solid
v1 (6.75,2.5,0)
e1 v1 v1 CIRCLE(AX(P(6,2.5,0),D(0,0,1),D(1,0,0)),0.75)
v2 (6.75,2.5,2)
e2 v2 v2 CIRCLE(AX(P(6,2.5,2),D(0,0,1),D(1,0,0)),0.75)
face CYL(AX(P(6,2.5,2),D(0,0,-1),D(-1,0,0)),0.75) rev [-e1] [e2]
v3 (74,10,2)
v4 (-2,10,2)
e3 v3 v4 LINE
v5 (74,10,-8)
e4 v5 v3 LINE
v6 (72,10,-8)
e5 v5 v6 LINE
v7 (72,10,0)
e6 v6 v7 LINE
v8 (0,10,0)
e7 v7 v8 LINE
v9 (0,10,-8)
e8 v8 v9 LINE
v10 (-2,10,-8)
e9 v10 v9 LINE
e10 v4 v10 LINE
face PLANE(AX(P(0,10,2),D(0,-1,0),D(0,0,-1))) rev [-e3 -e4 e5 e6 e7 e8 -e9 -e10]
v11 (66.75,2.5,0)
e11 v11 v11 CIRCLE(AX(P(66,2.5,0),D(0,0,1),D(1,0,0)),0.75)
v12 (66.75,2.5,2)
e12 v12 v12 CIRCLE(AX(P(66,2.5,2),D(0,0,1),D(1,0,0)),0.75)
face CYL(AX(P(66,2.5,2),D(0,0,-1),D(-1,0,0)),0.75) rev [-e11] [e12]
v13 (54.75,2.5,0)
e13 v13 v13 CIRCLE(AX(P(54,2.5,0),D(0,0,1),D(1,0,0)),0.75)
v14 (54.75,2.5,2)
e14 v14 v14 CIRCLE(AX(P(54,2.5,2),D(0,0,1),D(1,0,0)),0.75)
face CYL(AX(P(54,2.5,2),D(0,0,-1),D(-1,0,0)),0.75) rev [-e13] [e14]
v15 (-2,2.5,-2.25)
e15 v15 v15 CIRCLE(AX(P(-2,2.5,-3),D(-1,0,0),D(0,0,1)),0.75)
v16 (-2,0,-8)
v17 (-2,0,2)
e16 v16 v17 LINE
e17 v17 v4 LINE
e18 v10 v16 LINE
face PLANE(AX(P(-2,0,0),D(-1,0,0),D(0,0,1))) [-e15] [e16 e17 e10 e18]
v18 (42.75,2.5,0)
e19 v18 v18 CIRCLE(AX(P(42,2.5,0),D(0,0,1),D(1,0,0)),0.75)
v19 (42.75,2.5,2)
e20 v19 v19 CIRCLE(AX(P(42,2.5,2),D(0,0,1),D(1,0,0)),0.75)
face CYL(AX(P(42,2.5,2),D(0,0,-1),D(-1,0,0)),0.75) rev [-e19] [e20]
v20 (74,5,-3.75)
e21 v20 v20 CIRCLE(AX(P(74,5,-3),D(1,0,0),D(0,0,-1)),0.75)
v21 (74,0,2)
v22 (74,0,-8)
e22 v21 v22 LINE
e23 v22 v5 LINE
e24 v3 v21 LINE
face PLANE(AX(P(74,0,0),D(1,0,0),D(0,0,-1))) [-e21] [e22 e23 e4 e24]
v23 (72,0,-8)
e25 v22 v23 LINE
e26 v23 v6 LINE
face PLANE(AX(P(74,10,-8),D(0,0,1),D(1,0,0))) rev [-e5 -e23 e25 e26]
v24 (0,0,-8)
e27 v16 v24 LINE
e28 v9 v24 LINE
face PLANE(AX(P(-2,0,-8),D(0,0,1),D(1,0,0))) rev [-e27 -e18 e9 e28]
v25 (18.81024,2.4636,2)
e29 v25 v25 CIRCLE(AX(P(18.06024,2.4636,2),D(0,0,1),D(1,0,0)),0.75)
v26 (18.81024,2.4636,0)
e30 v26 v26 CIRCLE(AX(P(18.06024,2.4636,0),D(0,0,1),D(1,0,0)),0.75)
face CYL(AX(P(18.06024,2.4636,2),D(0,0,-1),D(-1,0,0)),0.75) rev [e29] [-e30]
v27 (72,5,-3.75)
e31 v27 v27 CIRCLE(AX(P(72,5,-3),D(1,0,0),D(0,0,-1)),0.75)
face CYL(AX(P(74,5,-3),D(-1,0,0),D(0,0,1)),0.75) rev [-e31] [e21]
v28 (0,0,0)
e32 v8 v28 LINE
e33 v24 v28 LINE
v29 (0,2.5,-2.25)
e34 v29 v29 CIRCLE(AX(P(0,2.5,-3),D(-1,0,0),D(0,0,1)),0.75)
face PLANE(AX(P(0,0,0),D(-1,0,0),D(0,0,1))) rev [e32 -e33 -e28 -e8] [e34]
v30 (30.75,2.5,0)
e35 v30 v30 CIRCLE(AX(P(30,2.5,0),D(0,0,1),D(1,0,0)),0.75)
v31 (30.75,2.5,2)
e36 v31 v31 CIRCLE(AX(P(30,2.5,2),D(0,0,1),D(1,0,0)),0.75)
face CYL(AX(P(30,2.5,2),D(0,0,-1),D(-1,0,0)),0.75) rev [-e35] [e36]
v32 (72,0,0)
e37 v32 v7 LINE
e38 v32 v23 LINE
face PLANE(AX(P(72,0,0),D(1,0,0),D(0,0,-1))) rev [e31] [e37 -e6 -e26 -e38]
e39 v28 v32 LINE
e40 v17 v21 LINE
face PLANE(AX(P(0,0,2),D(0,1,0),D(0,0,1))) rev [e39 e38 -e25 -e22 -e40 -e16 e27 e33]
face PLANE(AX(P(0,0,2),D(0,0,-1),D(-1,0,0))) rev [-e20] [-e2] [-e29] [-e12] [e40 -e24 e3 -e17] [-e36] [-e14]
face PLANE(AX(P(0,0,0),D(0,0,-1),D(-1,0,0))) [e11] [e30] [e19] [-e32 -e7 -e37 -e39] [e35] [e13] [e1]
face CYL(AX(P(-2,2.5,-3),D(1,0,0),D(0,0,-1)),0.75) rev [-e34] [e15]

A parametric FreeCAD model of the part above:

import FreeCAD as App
import Part
import Sketcher

V = App.Vector
Q = App.Units.Quantity

doc = App.newDocument("Part")
body = doc.addObject("PartDesign::Body", "Body")

sketch1 = body.newObject("Sketcher::SketchObject", "Sketch")
sketch1.AttachmentSupport = (doc.getObject("XY_Plane"), [""])
sketch1.MapMode = "FlatFace"
sketch1.addGeometry(Part.LineSegment(V(0, 10, 0), V(0, 0, 0)), False)
sketch1.addGeometry(Part.LineSegment(V(0, 0, 0), V(72, 0, 0)), False)
sketch1.addGeometry(Part.LineSegment(V(72, 0, 0), V(72, 10, 0)), False)
sketch1.addGeometry(Part.LineSegment(V(72, 10, 0), V(0, 10, 0)), False)
sketch1.addConstraint(Sketcher.Constraint("Coincident", 0, 2, 1, 1))
sketch1.addConstraint(Sketcher.Constraint("Coincident", 1, 2, 2, 1))
sketch1.addConstraint(Sketcher.Constraint("Coincident", 2, 2, 3, 1))
sketch1.addConstraint(Sketcher.Constraint("Coincident", 3, 2, 0, 1))
sketch1.addConstraint(Sketcher.Constraint("Vertical", 0))
sketch1.addConstraint(Sketcher.Constraint("Horizontal", 1))
sketch1.addConstraint(Sketcher.Constraint("Vertical", 2))
sketch1.addConstraint(Sketcher.Constraint("Horizontal", 3))
sketch1.addConstraint(Sketcher.Constraint("Coincident", 0, 2, -1, 1))
sketch1.addConstraint(Sketcher.Constraint("DistanceX", 1, 1, 1, 2, Q("72 mm")))
sketch1.addConstraint(Sketcher.Constraint("DistanceY", 0, 2, 0, 1, Q("10 mm")))
pad1 = body.newObject("PartDesign::Pad", "Pad")
pad1.Profile = sketch1
pad1.Length = 2

sketch2 = body.newObject("Sketcher::SketchObject", "Sketch001")
sketch2.AttachmentSupport = (doc.getObject("XY_Plane"), [""])
sketch2.MapMode = "FlatFace"
sketch2.addGeometry(Part.Circle(V(42, 2.5, 0), V(0, 0, 1), 0.8), False)
sketch2.addGeometry(Part.Circle(V(54, 2.5, 0), V(0, 0, 1), 0.8), False)
sketch2.addGeometry(Part.Circle(V(66, 2.5, 0), V(0, 0, 1), 0.8), False)
sketch2.addGeometry(Part.Circle(V(30, 2.5, 0), V(0, 0, 1), 0.8), False)
sketch2.addGeometry(Part.Circle(V(18.1, 2.5, 0), V(0, 0, 1), 0.8), False)
sketch2.addGeometry(Part.Circle(V(6, 2.5, 0), V(0, 0, 1), 0.8), False)
sketch2.addConstraint(Sketcher.Constraint("Equal", 0, 1))
sketch2.addConstraint(Sketcher.Constraint("Equal", 1, 2))
sketch2.addConstraint(Sketcher.Constraint("Equal", 2, 3))
sketch2.addConstraint(Sketcher.Constraint("Equal", 3, 4))
sketch2.addConstraint(Sketcher.Constraint("Equal", 4, 5))
sketch2.addConstraint(Sketcher.Constraint("Horizontal", 0, 3, 1, 3))
sketch2.addConstraint(Sketcher.Constraint("Horizontal", 1, 3, 2, 3))
sketch2.addConstraint(Sketcher.Constraint("Horizontal", 2, 3, 3, 3))
sketch2.addConstraint(Sketcher.Constraint("Horizontal", 3, 3, 5, 3))
sketch2.addConstraint(Sketcher.Constraint("Diameter", 0, Q("1.5 mm")))
sketch2.addConstraint(Sketcher.Constraint("DistanceX", -1, 1, 0, 3, Q("42 mm")))
sketch2.addConstraint(Sketcher.Constraint("DistanceX", -1, 1, 1, 3, Q("54 mm")))
sketch2.addConstraint(Sketcher.Constraint("DistanceX", -1, 1, 2, 3, Q("66 mm")))
sketch2.addConstraint(Sketcher.Constraint("DistanceX", -1, 1, 3, 3, Q("30 mm")))
sketch2.addConstraint(Sketcher.Constraint("DistanceX", -1, 1, 5, 3, Q("6 mm")))
sketch2.addConstraint(Sketcher.Constraint("DistanceY", -1, 1, 0, 3, Q("2.5 mm")))
sketch2.addConstraint(Sketcher.Constraint("DistanceY", -1, 1, 4, 3, Q("2.4636 mm")))
sketch2.addConstraint(Sketcher.Constraint("DistanceX", -1, 1, 4, 3, Q("18.06024 mm")))
pocket1 = body.newObject("PartDesign::Pocket", "Pocket")
pocket1.Profile = sketch2
pocket1.Length = 2
pocket1.Reversed = True

sketch3 = body.newObject("Sketcher::SketchObject", "Sketch002")
sketch3.AttachmentSupport = (doc.getObject("YZ_Plane"), [""])
sketch3.MapMode = "FlatFace"
sketch3.AttachmentOffset = App.Placement(V(0, 0, 72), App.Rotation())
sketch3.addGeometry(Part.LineSegment(V(10, 2, 0), V(0, 2, 0)), False)
sketch3.addGeometry(Part.LineSegment(V(0, 2, 0), V(0, -8, 0)), False)
sketch3.addGeometry(Part.LineSegment(V(0, -8, 0), V(10, -8, 0)), False)
sketch3.addGeometry(Part.LineSegment(V(10, -8, 0), V(10, 2, 0)), False)
sketch3.addConstraint(Sketcher.Constraint("Coincident", 0, 2, 1, 1))
sketch3.addConstraint(Sketcher.Constraint("Coincident", 1, 2, 2, 1))
sketch3.addConstraint(Sketcher.Constraint("Coincident", 2, 2, 3, 1))
sketch3.addConstraint(Sketcher.Constraint("Coincident", 3, 2, 0, 1))
sketch3.addConstraint(Sketcher.Constraint("Horizontal", 0))
sketch3.addConstraint(Sketcher.Constraint("Vertical", 1))
sketch3.addConstraint(Sketcher.Constraint("Horizontal", 2))
sketch3.addConstraint(Sketcher.Constraint("Vertical", 3))
sketch3.addConstraint(Sketcher.Constraint("PointOnObject", 0, 2, -2))
sketch3.addConstraint(Sketcher.Constraint("Equal", 2, 1))
sketch3.addConstraint(Sketcher.Constraint("DistanceX", 0, 2, 0, 1, Q("10 mm")))
sketch3.addConstraint(Sketcher.Constraint("DistanceY", -1, 1, 0, 2, Q("2 mm")))
pad2 = body.newObject("PartDesign::Pad", "Pad001")
pad2.Profile = sketch3
pad2.Length = 2

sketch4 = body.newObject("Sketcher::SketchObject", "Sketch003")
sketch4.AttachmentSupport = (doc.getObject("YZ_Plane"), [""])
sketch4.MapMode = "FlatFace"
sketch4.AttachmentOffset = App.Placement(V(0, 0, 72), App.Rotation())
sketch4.addGeometry(Part.Circle(V(5, -3, 0), V(0, 0, 1), 0.8), False)
sketch4.addConstraint(Sketcher.Constraint("Diameter", 0, Q("1.5 mm")))
sketch4.addConstraint(Sketcher.Constraint("DistanceX", -1, 1, 0, 3, Q("5 mm")))
sketch4.addConstraint(Sketcher.Constraint("DistanceY", 0, 3, -1, 1, Q("3 mm")))
pocket2 = body.newObject("PartDesign::Pocket", "Pocket001")
pocket2.Profile = sketch4
pocket2.Length = 2
pocket2.Reversed = True

sketch5 = body.newObject("Sketcher::SketchObject", "Sketch004")
sketch5.AttachmentSupport = (doc.getObject("YZ_Plane"), [""])
sketch5.MapMode = "FlatFace"
sketch5.addGeometry(Part.LineSegment(V(10, -8, 0), V(0, -8, 0)), False)
sketch5.addGeometry(Part.LineSegment(V(0, -8, 0), V(0, 2, 0)), False)
sketch5.addGeometry(Part.LineSegment(V(0, 2, 0), V(10, 2, 0)), False)
sketch5.addGeometry(Part.LineSegment(V(10, 2, 0), V(10, -8, 0)), False)
sketch5.addConstraint(Sketcher.Constraint("Coincident", 0, 2, 1, 1))
sketch5.addConstraint(Sketcher.Constraint("Coincident", 1, 2, 2, 1))
sketch5.addConstraint(Sketcher.Constraint("Coincident", 2, 2, 3, 1))
sketch5.addConstraint(Sketcher.Constraint("Coincident", 3, 2, 0, 1))
sketch5.addConstraint(Sketcher.Constraint("Horizontal", 0))
sketch5.addConstraint(Sketcher.Constraint("Vertical", 1))
sketch5.addConstraint(Sketcher.Constraint("Horizontal", 2))
sketch5.addConstraint(Sketcher.Constraint("Vertical", 3))
sketch5.addConstraint(Sketcher.Constraint("PointOnObject", 0, 2, -2))
sketch5.addConstraint(Sketcher.Constraint("Equal", 2, 1))
sketch5.addConstraint(Sketcher.Constraint("DistanceX", 0, 2, 0, 1, Q("10 mm")))
sketch5.addConstraint(Sketcher.Constraint("DistanceY", 0, 2, -1, 1, Q("8 mm")))
pad3 = body.newObject("PartDesign::Pad", "Pad002")
pad3.Profile = sketch5
pad3.Length = 2
pad3.Reversed = True

sketch6 = body.newObject("Sketcher::SketchObject", "Sketch005")
sketch6.AttachmentSupport = (doc.getObject("YZ_Plane"), [""])
sketch6.MapMode = "FlatFace"
sketch6.addGeometry(Part.Circle(V(2.5, -3, 0), V(0, 0, 1), 0.8), False)
sketch6.addConstraint(Sketcher.Constraint("Diameter", 0, Q("1.5 mm")))
sketch6.addConstraint(Sketcher.Constraint("DistanceY", 0, 3, -1, 1, Q("3 mm")))
sketch6.addConstraint(Sketcher.Constraint("DistanceX", -1, 1, 0, 3, Q("2.5 mm")))
pocket3 = body.newObject("PartDesign::Pocket", "Pocket002")
pocket3.Profile = sketch6
pocket3.Length = 2

doc.recompute()
